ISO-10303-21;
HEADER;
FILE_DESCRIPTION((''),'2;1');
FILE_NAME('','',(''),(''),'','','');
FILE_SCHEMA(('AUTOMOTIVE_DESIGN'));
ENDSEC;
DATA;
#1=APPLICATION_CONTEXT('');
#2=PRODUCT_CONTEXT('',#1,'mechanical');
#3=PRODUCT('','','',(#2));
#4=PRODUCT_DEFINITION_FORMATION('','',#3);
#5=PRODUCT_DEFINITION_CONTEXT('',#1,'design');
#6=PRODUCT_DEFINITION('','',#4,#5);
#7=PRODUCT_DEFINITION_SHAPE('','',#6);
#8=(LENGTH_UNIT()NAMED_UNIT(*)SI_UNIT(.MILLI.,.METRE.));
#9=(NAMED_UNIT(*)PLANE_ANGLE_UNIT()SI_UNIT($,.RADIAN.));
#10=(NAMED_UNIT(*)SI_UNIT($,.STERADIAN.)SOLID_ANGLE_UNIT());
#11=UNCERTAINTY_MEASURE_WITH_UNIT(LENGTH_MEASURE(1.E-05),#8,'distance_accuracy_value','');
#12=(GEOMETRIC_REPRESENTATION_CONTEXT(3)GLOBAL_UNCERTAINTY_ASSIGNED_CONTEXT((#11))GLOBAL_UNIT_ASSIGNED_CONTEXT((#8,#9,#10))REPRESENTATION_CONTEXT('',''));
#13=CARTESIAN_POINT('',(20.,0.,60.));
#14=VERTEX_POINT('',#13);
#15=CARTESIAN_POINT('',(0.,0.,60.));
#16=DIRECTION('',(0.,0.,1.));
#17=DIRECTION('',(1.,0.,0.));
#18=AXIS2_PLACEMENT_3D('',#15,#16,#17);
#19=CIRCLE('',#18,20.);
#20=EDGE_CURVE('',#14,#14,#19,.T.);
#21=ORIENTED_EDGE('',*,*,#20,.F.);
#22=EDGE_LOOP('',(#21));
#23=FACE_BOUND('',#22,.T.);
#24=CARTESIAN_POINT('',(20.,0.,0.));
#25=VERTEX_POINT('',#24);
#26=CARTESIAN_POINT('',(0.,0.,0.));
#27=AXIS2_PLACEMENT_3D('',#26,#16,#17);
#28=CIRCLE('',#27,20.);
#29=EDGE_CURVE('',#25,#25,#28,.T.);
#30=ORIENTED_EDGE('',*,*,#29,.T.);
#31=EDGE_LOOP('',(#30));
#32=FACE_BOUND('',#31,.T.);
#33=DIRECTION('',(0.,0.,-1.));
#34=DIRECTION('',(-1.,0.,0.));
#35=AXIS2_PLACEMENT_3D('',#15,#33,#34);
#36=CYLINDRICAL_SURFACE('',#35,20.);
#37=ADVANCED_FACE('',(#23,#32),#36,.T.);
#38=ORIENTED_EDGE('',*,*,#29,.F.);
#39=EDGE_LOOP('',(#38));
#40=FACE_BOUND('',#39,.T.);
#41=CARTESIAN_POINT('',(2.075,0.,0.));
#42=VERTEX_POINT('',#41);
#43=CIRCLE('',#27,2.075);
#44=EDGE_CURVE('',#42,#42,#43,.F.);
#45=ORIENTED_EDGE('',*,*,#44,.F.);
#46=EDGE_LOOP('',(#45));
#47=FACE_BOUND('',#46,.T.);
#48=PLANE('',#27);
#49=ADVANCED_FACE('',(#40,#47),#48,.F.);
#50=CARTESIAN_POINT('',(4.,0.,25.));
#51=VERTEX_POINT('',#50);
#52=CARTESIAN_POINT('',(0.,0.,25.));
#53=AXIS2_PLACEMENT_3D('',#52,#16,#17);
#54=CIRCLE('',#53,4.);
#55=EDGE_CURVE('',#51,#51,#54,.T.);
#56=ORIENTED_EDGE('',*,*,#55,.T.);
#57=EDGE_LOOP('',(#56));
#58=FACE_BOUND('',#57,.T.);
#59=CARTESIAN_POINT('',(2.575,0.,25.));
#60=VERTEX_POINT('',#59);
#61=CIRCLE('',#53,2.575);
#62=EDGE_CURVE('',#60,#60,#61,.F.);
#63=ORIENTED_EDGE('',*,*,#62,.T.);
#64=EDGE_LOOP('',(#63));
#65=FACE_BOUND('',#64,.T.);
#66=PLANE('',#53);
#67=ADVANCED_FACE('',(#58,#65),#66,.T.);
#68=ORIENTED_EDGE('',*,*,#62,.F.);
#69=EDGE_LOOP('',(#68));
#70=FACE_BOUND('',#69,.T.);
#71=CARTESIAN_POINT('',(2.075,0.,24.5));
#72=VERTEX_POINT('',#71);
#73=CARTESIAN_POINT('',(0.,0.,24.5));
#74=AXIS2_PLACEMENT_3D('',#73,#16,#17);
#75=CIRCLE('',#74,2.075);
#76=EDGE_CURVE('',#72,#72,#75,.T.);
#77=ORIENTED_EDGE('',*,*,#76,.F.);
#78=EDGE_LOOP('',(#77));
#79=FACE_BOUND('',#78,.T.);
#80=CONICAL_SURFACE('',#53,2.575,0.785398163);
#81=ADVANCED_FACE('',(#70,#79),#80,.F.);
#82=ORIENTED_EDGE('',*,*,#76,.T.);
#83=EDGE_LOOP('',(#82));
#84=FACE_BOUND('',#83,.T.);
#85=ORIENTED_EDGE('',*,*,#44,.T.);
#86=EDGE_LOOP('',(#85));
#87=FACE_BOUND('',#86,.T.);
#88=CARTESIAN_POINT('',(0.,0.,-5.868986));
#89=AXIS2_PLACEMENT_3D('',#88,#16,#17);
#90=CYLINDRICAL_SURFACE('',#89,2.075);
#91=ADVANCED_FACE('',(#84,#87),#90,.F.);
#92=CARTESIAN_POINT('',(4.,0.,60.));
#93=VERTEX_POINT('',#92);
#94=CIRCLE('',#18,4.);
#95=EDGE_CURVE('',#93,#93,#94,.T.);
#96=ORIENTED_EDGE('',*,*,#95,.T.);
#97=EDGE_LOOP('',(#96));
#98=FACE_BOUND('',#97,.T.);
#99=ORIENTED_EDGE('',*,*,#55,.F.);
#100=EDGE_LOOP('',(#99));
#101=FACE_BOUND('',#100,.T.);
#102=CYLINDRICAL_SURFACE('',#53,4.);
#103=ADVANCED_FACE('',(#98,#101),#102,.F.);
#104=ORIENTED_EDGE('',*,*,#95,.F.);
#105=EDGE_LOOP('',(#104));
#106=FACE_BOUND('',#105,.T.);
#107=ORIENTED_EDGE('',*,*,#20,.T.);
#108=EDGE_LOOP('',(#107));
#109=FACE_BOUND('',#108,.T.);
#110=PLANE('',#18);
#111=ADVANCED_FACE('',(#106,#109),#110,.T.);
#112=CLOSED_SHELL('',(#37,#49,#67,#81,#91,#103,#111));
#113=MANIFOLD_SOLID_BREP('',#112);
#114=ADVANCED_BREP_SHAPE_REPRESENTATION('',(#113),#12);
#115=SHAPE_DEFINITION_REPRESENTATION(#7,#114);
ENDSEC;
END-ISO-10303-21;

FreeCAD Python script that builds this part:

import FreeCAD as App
import Part
import Sketcher

V = App.Vector
Q = App.Units.Quantity


def edges_at(feature, points):
    """Names of the edges that pass closest to the given points."""
    edges = feature.Shape.Edges
    near = lambda p: min(range(len(edges)), key=lambda i: edges[i].distToShape(Part.Vertex(*p))[0])
    return sorted({f"Edge{near(p) + 1}" for p in points})

doc = App.newDocument("Part")
body = doc.addObject("PartDesign::Body", "Body")

# Sketch on XY plane
sketch1 = doc.addObject("Sketcher::SketchObject", "Sketch")
body.addObject(sketch1)
sketch1.AttachmentSupport = (doc.XY_Plane, [""])
sketch1.MapMode = "FlatFace"
sketch1.addGeometry(Part.Circle(V(0, 0, 0), V(0, 0, 1), 20), False)
sketch1.addConstraint([
    Sketcher.Constraint("Coincident", 0, 3, -1, 1),
    Sketcher.Constraint("Diameter", 0, Q("40 mm")),
])
pad1 = doc.addObject("PartDesign::Pad", "Pad")
body.addObject(pad1)
pad1.Profile = sketch1
pad1.Length = 60

# Sketch on XY plane
sketch2 = doc.addObject("Sketcher::SketchObject", "Sketch001")
body.addObject(sketch2)
sketch2.AttachmentSupport = (doc.XY_Plane, [""])
sketch2.MapMode = "FlatFace"
sketch2.AttachmentOffset = App.Placement(V(0, 0, 60), App.Rotation())
sketch2.addGeometry(Part.Circle(V(0, 0, 0), V(0, 0, 1), 2.075), False)
sketch2.addConstraint([
    Sketcher.Constraint("Coincident", 0, 3, -1, 1),
    Sketcher.Constraint("Diameter", 0, Q("4.15 mm")),
])
pocket1 = doc.addObject("PartDesign::Pocket", "Pocket")
body.addObject(pocket1)
pocket1.Profile = sketch2
pocket1.Length = 60

# Sketch on XY plane
sketch3 = doc.addObject("Sketcher::SketchObject", "Sketch002")
body.addObject(sketch3)
sketch3.AttachmentSupport = (doc.XY_Plane, [""])
sketch3.MapMode = "FlatFace"
sketch3.AttachmentOffset = App.Placement(V(0, 0, 60), App.Rotation())
sketch3.addGeometry(Part.Circle(V(0, 0, 0), V(0, 0, 1), 4), False)
sketch3.addConstraint([
    Sketcher.Constraint("Coincident", 0, 3, -1, 1),
    Sketcher.Constraint("Diameter", 0, Q("8 mm")),
])
pocket2 = doc.addObject("PartDesign::Pocket", "Pocket001")
body.addObject(pocket2)
pocket2.Profile = sketch3
pocket2.Length = 35
doc.recompute()

chamfer = doc.addObject("PartDesign::Chamfer", "Chamfer")
body.addObject(chamfer)
chamfer.Base = (pocket2, edges_at(pocket2, [(-2.075, 0, 25)]))
chamfer.Size = 0.5

doc.recompute()
